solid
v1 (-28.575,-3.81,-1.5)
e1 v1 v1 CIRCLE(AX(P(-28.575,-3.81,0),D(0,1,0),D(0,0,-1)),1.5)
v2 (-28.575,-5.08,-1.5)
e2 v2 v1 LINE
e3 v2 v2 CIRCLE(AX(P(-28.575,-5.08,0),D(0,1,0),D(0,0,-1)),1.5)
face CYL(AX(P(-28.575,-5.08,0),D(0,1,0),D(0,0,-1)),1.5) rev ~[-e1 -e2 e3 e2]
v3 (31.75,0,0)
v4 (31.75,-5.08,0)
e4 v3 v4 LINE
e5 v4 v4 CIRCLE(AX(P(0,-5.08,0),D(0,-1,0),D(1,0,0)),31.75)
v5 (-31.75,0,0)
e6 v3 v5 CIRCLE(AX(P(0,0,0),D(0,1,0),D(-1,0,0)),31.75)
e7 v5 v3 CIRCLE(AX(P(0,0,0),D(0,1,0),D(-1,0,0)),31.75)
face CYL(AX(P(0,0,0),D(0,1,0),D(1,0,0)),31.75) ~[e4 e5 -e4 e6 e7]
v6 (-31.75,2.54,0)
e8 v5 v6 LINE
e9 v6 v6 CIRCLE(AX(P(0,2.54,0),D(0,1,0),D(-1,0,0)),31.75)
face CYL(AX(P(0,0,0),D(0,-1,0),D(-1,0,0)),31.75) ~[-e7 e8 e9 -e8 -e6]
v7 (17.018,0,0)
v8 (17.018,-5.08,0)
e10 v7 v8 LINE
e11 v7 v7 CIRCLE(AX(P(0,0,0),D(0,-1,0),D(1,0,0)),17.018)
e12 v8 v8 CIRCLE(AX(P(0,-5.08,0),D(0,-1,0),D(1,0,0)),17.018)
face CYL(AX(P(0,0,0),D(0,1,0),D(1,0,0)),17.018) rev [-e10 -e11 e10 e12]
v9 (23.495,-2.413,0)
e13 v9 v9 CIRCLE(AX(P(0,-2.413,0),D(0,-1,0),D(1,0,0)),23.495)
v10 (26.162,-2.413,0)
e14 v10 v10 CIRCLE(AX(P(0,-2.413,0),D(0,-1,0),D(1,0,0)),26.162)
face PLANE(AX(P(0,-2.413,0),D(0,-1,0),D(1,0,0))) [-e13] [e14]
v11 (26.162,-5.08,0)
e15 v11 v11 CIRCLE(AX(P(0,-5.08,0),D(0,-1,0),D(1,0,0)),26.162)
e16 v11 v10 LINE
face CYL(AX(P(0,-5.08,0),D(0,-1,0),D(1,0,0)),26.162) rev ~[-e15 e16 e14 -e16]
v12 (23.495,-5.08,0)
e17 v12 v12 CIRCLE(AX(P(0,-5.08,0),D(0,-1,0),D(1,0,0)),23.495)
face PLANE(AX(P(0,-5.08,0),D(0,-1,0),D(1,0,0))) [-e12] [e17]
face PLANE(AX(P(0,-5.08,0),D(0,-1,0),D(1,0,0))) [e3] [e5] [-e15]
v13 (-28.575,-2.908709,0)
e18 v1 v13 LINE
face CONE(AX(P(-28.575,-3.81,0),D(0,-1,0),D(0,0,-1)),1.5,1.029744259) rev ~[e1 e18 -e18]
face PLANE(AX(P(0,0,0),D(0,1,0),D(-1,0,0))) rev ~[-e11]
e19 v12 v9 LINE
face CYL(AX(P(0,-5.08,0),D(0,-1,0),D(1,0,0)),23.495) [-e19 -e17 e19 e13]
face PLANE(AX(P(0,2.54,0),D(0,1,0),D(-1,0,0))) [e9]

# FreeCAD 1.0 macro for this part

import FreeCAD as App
import Part
import Sketcher

V = App.Vector
Q = App.Units.Quantity

doc = App.newDocument("Part")
body = doc.addObject("PartDesign::Body", "Body")

sketch1 = body.newObject("Sketcher::SketchObject", "Sketch")
sketch1.AttachmentSupport = (doc.getObject("XZ_Plane"), [""])
sketch1.MapMode = "FlatFace"
sketch1.addGeometry(Part.Circle(V(0, 0, 0), V(0, 0, 1), 32), False)
sketch1.addConstraint([
    Sketcher.Constraint("Coincident", 0, 3, -1, 1),
    Sketcher.Constraint("Diameter", 0, Q("2.5 in")),
])
pad1 = body.newObject("PartDesign::Pad", "Pad")
pad1.Profile = sketch1
pad1.Length = Q("0.1 in")
pad1.Reversed = True

sketch2 = body.newObject("Sketcher::SketchObject", "Sketch001")
sketch2.AttachmentSupport = (doc.getObject("XZ_Plane"), [""])
sketch2.MapMode = "FlatFace"
sketch2.addGeometry([
    Part.Circle(V(0, 0, 0), V(0, 0, 1), 32),
    Part.Circle(V(0, 0, 0), V(0, 0, 1), 17),
], False)
sketch2.addConstraint([
    Sketcher.Constraint("Coincident", 0, 3, -1, 1),
    Sketcher.Constraint("Coincident", 1, 3, -1, 1),
    Sketcher.Constraint("Diameter", 1, Q("1.34 in")),
    Sketcher.Constraint("Diameter", 0, Q("2.5 in")),
])
pad2 = body.newObject("PartDesign::Pad", "Pad001")
pad2.Profile = sketch2
pad2.Length = Q("0.2 in")

sketch3 = body.newObject("Sketcher::SketchObject", "Sketch002")
sketch3.AttachmentSupport = (doc.getObject("XZ_Plane"), [""])
sketch3.MapMode = "FlatFace"
sketch3.AttachmentOffset = App.Placement(V(0, 0, 0.2 * 25.4), App.Rotation())
sketch3.addGeometry([
    Part.Circle(V(0, 0, 0), V(0, 0, 1), 26),
    Part.Circle(V(0, 0, 0), V(0, 0, 1), 23),
], False)
sketch3.addConstraint([
    Sketcher.Constraint("Coincident", 0, 3, -1, 1),
    Sketcher.Constraint("Coincident", 1, 3, -1, 1),
    Sketcher.Constraint("Diameter", 0, Q("2.06 in")),
    Sketcher.Constraint("Diameter", 1, Q("1.85 in")),
])
pocket1 = body.newObject("PartDesign::Pocket", "Pocket")
pocket1.Profile = sketch3
pocket1.Length = Q("0.105 in")

sketch4 = body.newObject("Sketcher::SketchObject", "Sketch003")
sketch4.AttachmentSupport = (doc.getObject("XZ_Plane"), [""])
sketch4.MapMode = "FlatFace"
sketch4.AttachmentOffset = App.Placement(V(0, 0, 0.2 * 25.4), App.Rotation())
sketch4.addGeometry(Part.Circle(V(-28.6, 0, 0), V(0, 0, 1), 1.5), False)
sketch4.addConstraint([
    Sketcher.Constraint("PointOnObject", 0, 3, -1),
    Sketcher.Constraint("Diameter", 0, Q("0.1181 in")),
    Sketcher.Constraint("DistanceX", 0, 3, -1, 1, Q("1.125 in")),
])
doc.recompute()
hole = body.newObject("PartDesign::Hole", "Hole")
hole.Profile = sketch4
hole.ThreadType = "None"
hole.Diameter = Q("0.1181102 in")
hole.DepthType = "Dimension"
hole.Depth = Q("0.05 in")
hole.DrillPoint = "Angled"
hole.DrillPointAngle = 118

doc.recompute()
